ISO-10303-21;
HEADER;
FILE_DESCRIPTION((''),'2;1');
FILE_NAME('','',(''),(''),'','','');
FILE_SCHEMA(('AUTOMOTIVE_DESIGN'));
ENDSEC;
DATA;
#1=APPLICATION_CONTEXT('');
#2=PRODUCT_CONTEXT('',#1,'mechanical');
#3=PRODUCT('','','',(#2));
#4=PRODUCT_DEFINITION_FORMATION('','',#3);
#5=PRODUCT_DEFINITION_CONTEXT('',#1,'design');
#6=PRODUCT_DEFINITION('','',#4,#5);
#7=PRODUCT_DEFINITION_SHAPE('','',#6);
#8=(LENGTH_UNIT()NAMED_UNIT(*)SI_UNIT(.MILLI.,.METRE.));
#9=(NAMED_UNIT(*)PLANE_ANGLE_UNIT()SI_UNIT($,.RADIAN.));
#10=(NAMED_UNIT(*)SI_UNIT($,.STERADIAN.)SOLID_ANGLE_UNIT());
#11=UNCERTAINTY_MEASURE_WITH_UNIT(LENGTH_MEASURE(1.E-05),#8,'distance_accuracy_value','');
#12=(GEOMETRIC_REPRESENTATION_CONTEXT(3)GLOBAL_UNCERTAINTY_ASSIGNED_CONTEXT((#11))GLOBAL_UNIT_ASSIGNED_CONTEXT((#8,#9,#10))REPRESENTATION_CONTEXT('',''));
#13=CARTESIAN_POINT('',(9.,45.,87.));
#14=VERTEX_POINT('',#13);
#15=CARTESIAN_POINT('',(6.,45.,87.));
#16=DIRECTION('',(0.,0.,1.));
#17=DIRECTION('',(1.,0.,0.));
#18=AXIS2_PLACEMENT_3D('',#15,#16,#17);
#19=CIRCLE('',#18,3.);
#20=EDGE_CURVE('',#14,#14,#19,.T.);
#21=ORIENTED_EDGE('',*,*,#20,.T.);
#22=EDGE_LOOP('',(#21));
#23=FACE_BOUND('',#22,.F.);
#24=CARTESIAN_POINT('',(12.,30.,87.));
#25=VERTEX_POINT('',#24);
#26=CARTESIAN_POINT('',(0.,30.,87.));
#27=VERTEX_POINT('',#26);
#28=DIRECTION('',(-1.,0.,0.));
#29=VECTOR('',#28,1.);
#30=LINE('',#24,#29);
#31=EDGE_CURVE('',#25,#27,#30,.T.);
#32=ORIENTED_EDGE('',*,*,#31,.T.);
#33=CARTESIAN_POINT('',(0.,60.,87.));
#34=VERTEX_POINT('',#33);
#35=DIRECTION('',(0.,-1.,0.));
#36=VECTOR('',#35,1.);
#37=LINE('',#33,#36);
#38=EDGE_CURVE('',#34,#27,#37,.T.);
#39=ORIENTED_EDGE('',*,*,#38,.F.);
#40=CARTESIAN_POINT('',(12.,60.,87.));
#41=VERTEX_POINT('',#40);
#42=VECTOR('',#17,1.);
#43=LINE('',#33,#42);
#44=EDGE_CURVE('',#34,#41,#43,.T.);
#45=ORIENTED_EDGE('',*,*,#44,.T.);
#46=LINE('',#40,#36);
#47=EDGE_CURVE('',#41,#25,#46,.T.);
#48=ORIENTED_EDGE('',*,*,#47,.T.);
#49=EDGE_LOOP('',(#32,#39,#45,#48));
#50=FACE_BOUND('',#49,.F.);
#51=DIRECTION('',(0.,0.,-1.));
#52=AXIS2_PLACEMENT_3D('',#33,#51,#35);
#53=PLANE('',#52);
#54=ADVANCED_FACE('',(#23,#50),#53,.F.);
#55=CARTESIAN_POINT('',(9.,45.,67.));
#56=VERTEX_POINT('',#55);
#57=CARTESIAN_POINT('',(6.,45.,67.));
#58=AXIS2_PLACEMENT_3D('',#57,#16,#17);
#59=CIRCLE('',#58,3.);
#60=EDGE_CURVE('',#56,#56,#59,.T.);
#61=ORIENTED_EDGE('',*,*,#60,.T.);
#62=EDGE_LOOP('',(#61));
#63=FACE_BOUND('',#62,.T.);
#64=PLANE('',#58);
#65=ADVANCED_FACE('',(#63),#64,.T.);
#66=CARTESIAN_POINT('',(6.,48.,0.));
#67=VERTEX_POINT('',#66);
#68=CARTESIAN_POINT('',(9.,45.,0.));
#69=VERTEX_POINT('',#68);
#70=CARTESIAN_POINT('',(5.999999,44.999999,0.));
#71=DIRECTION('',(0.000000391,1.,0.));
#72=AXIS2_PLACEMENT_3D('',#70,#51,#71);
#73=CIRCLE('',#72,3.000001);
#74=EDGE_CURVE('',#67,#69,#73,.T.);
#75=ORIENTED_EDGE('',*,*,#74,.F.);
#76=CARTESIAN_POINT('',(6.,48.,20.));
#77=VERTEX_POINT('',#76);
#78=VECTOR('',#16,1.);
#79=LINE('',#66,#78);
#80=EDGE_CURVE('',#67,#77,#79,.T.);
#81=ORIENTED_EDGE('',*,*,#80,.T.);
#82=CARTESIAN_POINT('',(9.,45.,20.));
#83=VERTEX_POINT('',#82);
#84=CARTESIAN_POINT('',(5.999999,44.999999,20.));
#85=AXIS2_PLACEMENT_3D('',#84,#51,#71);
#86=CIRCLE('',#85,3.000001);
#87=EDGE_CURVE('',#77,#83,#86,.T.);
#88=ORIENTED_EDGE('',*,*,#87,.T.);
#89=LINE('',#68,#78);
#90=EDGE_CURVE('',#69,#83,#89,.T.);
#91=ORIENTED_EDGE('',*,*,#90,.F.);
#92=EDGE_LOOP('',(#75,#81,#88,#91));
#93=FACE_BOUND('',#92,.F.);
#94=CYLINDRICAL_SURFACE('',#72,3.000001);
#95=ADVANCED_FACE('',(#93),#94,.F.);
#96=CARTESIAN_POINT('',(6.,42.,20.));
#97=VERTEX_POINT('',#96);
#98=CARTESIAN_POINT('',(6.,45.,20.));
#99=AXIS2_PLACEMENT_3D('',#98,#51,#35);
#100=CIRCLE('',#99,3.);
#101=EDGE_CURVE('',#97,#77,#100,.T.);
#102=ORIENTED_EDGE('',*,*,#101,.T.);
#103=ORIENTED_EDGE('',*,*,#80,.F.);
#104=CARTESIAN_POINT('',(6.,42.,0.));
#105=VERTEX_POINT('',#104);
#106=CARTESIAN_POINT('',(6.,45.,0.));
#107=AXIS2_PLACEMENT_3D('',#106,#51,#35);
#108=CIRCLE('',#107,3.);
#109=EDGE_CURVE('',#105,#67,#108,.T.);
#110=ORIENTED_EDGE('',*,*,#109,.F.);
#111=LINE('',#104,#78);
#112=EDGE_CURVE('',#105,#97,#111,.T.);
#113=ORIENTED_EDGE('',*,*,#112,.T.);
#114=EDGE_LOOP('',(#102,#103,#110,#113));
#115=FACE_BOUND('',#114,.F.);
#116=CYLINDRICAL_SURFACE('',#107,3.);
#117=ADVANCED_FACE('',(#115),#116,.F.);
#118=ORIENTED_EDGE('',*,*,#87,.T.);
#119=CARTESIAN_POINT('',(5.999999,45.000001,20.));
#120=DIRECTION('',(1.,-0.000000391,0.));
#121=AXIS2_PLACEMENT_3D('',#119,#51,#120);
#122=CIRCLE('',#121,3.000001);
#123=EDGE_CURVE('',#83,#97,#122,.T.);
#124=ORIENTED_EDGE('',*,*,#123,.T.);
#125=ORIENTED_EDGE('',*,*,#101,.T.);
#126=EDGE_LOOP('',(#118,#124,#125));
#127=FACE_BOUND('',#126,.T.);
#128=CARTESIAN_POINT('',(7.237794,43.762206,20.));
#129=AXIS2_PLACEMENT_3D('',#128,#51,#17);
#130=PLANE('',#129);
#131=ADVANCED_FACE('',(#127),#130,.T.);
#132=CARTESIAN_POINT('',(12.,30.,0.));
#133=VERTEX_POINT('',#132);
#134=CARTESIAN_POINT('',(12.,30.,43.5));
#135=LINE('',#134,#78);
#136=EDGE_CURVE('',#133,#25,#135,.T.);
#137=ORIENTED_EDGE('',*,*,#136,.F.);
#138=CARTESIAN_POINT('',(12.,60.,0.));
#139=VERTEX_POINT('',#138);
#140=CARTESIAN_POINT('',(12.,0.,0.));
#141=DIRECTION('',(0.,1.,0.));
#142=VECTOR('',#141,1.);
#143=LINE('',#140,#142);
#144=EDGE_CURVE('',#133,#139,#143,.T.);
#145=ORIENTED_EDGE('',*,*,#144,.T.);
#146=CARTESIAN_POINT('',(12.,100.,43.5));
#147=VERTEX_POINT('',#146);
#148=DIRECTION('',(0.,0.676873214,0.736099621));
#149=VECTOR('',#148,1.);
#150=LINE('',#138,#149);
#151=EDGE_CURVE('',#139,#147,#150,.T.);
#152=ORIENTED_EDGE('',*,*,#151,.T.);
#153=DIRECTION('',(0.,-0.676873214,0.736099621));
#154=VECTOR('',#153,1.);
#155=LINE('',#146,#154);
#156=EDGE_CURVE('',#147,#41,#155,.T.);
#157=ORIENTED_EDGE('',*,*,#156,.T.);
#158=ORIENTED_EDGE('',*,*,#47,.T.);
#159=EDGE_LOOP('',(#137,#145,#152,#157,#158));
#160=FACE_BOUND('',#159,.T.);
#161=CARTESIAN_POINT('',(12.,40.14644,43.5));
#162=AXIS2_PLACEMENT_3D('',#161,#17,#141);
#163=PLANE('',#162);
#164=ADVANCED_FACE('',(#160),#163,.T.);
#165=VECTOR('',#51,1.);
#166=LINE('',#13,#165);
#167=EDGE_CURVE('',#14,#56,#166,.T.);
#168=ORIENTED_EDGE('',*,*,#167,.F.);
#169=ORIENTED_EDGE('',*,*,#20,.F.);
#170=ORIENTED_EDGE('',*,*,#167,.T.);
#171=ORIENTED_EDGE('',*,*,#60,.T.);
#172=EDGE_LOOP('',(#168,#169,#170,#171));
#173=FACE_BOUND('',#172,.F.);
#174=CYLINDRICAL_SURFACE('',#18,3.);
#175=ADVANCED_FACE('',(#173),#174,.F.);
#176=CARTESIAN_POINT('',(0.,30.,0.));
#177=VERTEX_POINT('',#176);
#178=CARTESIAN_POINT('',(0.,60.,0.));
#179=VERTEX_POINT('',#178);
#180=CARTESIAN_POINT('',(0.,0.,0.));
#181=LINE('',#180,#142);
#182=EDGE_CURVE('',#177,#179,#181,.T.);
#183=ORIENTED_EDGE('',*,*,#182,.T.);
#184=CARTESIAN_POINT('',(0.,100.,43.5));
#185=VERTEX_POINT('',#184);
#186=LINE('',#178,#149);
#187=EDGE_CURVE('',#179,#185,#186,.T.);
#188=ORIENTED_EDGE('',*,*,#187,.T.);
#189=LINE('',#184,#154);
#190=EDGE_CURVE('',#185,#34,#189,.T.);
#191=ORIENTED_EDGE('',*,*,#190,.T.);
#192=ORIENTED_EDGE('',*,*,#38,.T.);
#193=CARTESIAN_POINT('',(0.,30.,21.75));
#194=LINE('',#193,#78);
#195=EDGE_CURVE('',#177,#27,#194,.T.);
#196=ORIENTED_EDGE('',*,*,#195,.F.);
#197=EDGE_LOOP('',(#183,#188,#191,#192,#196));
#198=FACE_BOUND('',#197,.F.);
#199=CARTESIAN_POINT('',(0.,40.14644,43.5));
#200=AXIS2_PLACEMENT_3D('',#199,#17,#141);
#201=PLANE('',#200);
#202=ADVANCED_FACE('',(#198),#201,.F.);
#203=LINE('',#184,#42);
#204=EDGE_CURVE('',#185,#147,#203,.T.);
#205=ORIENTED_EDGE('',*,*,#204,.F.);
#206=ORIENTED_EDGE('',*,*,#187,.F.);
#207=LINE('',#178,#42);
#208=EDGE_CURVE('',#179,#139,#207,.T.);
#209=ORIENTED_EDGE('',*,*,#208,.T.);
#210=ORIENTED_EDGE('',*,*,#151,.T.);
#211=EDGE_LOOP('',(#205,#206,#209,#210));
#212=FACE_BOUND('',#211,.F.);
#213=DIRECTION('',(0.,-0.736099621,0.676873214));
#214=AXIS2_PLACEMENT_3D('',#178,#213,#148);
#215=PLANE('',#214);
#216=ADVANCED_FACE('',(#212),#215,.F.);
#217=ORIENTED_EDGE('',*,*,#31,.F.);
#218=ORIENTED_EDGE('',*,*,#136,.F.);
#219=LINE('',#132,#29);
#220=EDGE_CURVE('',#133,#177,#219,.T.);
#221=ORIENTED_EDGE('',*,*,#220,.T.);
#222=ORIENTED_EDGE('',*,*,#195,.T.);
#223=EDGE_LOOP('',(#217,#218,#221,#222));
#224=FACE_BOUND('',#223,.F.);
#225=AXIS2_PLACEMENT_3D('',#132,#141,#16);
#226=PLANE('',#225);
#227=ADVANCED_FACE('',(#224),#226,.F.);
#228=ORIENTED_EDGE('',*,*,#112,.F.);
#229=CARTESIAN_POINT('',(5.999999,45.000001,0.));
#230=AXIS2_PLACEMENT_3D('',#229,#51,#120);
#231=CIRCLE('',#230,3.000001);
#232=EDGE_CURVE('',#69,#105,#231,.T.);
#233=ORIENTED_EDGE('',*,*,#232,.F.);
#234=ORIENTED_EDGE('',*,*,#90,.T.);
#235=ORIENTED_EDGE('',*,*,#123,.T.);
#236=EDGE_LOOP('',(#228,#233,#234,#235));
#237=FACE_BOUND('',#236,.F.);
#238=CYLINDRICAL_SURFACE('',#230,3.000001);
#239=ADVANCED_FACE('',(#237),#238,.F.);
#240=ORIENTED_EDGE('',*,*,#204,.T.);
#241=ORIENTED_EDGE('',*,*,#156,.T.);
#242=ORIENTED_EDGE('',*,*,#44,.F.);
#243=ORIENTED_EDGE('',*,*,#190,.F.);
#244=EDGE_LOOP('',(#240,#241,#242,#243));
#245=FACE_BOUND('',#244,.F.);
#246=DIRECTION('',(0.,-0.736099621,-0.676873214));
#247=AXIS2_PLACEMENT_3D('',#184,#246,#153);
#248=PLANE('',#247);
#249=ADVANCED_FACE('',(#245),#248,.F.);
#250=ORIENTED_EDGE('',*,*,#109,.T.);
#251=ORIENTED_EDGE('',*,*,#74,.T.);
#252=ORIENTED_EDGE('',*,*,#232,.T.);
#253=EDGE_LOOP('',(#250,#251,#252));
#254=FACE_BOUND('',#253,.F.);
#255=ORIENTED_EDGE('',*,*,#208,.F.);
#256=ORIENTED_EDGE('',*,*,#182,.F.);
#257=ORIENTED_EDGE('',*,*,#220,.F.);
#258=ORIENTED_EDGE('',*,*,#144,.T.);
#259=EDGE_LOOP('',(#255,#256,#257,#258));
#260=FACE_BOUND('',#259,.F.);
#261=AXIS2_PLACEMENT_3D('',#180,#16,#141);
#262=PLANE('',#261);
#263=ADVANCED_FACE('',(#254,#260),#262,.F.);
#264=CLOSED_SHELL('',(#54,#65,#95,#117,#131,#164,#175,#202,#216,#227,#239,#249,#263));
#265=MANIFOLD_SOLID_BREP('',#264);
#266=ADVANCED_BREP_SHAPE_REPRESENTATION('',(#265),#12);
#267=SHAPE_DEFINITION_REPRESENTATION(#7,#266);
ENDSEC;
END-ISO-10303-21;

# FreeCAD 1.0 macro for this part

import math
import FreeCAD as App
import Part
import Sketcher

V = App.Vector
Q = App.Units.Quantity


def add_polygon(sketch, points):
    """Adds a closed chain of lines whose ends are joined by coincident constraints."""
    first, n = sketch.GeometryCount, len(points)
    for a, b in zip(points, points[1:] + points[:1]):
        sketch.addGeometry(Part.LineSegment(App.Vector(*a, 0), App.Vector(*b, 0)), False)
    for i in range(n):
        sketch.addConstraint(Sketcher.Constraint("Coincident", first + i, 2, first + (i + 1) % n, 1))

doc = App.newDocument("Part")
params = doc.addObject("Spreadsheet::Sheet", "Params")
for row, (alias, value) in enumerate([
    ("sketch1_width", "60 mm"),
    ("sketch1_height", "87 mm"),
    ("pad1_length", "12 mm"),
    ("sketch2_diameter", "6 mm"),
    ("pocket1_length", "20 mm"),
    ("sketch3_diameter", "6 mm"),
    ("pocket2_length", "20 mm"),
    ("sketch4_width", "30 mm"),
    ("sketch4_height", "87 mm"),
    ("pocket3_length", "25 mm"),
], start=1):
    params.set(f"A{row}", alias)
    params.set(f"B{row}", "=" + value)
    params.setAlias(f"B{row}", alias)

body = doc.addObject("PartDesign::Body", "Body")

# Sketch on YZ plane
sketch1 = body.newObject("Sketcher::SketchObject", "Sketch")
sketch1.AttachmentSupport = (doc.getObject("YZ_Plane"), [""])
sketch1.MapMode = "FlatFace"
add_polygon(sketch1, [(0, 87), (0, 0), (60, 0), (100, 44), (60, 87)])  # lines 0-4
sketch1.addConstraint(Sketcher.Constraint("Vertical", 0))
sketch1.addConstraint(Sketcher.Constraint("Horizontal", 1))
sketch1.addConstraint(Sketcher.Constraint("Horizontal", 4))
sketch1.addConstraint(Sketcher.Constraint("Coincident", 0, 2, -1, 1))
sketch1.addConstraint(Sketcher.Constraint("Vertical", 1, 2, 3, 2))
sketch1.addConstraint(Sketcher.Constraint("Equal", 2, 3))
sketch1.addConstraint(Sketcher.Constraint("DistanceX", 1, 1, 1, 2, Q("60 mm")))
sketch1.addConstraint(Sketcher.Constraint("DistanceY", 0, 2, 0, 1, Q("87 mm")))
sketch1.addConstraint(Sketcher.Constraint("DistanceX", -1, 1, 2, 2, Q("100 mm")))
sketch1.setExpression("Constraints[11]", "Params.sketch1_width")
sketch1.setExpression("Constraints[12]", "Params.sketch1_height")
pad1 = body.newObject("PartDesign::Pad", "Pad")
pad1.Profile = sketch1
pad1.setExpression("Length", "Params.pad1_length")

# Sketch on XY plane
sketch2 = body.newObject("Sketcher::SketchObject", "Sketch001")
sketch2.AttachmentSupport = (doc.getObject("XY_Plane"), [""])
sketch2.MapMode = "FlatFace"
sketch2.AttachmentOffset = App.Placement(V(0, 0, 87), App.Rotation())
sketch2.addGeometry(Part.Circle(V(6, 45, 0), V(0, 0, 1), 3), False)
sketch2.addGeometry(Part.Circle(V(6, 15, 0), V(0, 0, 1), 3), False)
sketch2.addGeometry(Part.Circle(V(6, -15, 0), V(0, 0, 1), 3), False)
sketch2.addConstraint(Sketcher.Constraint("Equal", 0, 1))
sketch2.addConstraint(Sketcher.Constraint("Equal", 1, 2))
sketch2.addConstraint(Sketcher.Constraint("Symmetric", 1, 3, 2, 3, -1))
sketch2.addConstraint(Sketcher.Constraint("Vertical", 0, 3, 1, 3))
sketch2.addConstraint(Sketcher.Constraint("Diameter", 0, Q("6 mm")))
sketch2.addConstraint(Sketcher.Constraint("DistanceX", -1, 1, 0, 3, Q("6 mm")))
sketch2.addConstraint(Sketcher.Constraint("DistanceY", -1, 1, 0, 3, Q("45 mm")))
sketch2.addConstraint(Sketcher.Constraint("DistanceY", -1, 1, 1, 3, Q("15 mm")))
sketch2.setExpression("Constraints[4]", "Params.sketch2_diameter")
pocket1 = body.newObject("PartDesign::Pocket", "Pocket")
pocket1.Profile = sketch2
pocket1.setExpression("Length", "Params.pocket1_length")

# Sketch on XY plane
sketch3 = body.newObject("Sketcher::SketchObject", "Sketch002")
sketch3.AttachmentSupport = (doc.getObject("XY_Plane"), [""])
sketch3.MapMode = "FlatFace"
sketch3.addGeometry(Part.ArcOfCircle(Part.Circle(V(6, 15, 0), V(0, 0, 1), 3), math.radians(-90), math.radians(0)), False)
sketch3.addGeometry(Part.ArcOfCircle(Part.Circle(V(6, 15, 0), V(0, 0, 1), 3), math.radians(90), math.radians(270)), False)
sketch3.addGeometry(Part.ArcOfCircle(Part.Circle(V(6, 15, 0), V(0, 0, 1), 3), math.radians(0), math.radians(90)), False)
sketch3.addGeometry(Part.ArcOfCircle(Part.Circle(V(6, 45, 0), V(0, 0, 1), 3), math.radians(-90), math.radians(0)), False)
sketch3.addGeometry(Part.ArcOfCircle(Part.Circle(V(6, 45, 0), V(0, 0, 1), 3), math.radians(90), math.radians(270)), False)
sketch3.addGeometry(Part.ArcOfCircle(Part.Circle(V(6, 45, 0), V(0, 0, 1), 3), math.radians(0), math.radians(90)), False)
sketch3.addGeometry(Part.Circle(V(6, -15, 0), V(0, 0, 1), 3), False)
sketch3.addConstraint(Sketcher.Constraint("Tangent", 0, 1, 1, 2))
sketch3.addConstraint(Sketcher.Constraint("Tangent", 1, 1, 2, 2))
sketch3.addConstraint(Sketcher.Constraint("Tangent", 2, 1, 0, 2))
sketch3.addConstraint(Sketcher.Constraint("Tangent", 3, 1, 4, 2))
sketch3.addConstraint(Sketcher.Constraint("Tangent", 4, 1, 5, 2))
sketch3.addConstraint(Sketcher.Constraint("Tangent", 5, 1, 3, 2))
sketch3.addConstraint(Sketcher.Constraint("Equal", 2, 3))
sketch3.addConstraint(Sketcher.Constraint("Equal", 5, 6))
sketch3.addConstraint(Sketcher.Constraint("Symmetric", 0, 3, 6, 3, -1))
sketch3.addConstraint(Sketcher.Constraint("Horizontal", 1, 3, 2, 1))
sketch3.addConstraint(Sketcher.Constraint("Horizontal", 4, 3, 5, 1))
sketch3.addConstraint(Sketcher.Constraint("Vertical", 2, 3, 3, 3))
sketch3.addConstraint(Sketcher.Constraint("Vertical", 6, 3, 0, 1))
sketch3.addConstraint(Sketcher.Constraint("Vertical", 0, 1, 1, 1))
sketch3.addConstraint(Sketcher.Constraint("Vertical", 1, 1, 3, 1))
sketch3.addConstraint(Sketcher.Constraint("Vertical", 3, 1, 4, 1))
sketch3.addConstraint(Sketcher.Constraint("Diameter", 6, Q("6 mm")))
sketch3.addConstraint(Sketcher.Constraint("DistanceX", -1, 1, 0, 3, Q("5.999999 mm")))
sketch3.addConstraint(Sketcher.Constraint("DistanceY", -1, 1, 0, 3, Q("15.000001 mm")))
sketch3.addConstraint(Sketcher.Constraint("DistanceY", -1, 1, 3, 3, Q("45.000001 mm")))
sketch3.setExpression("Constraints[16]", "Params.sketch3_diameter")
pocket2 = body.newObject("PartDesign::Pocket", "Pocket001")
pocket2.Profile = sketch3
pocket2.setExpression("Length", "Params.pocket2_length")
pocket2.Reversed = True

# Sketch on YZ plane
sketch4 = body.newObject("Sketcher::SketchObject", "Sketch003")
sketch4.AttachmentSupport = (doc.getObject("YZ_Plane"), [""])
sketch4.MapMode = "FlatFace"
sketch4.AttachmentOffset = App.Placement(V(0, 0, 12), App.Rotation())
add_polygon(sketch4, [(0, 87), (0, 0), (30, 0), (30, 87)])  # lines 0-3
sketch4.addConstraint(Sketcher.Constraint("Vertical", 0))
sketch4.addConstraint(Sketcher.Constraint("Horizontal", 1))
sketch4.addConstraint(Sketcher.Constraint("Vertical", 2))
sketch4.addConstraint(Sketcher.Constraint("Horizontal", 3))
sketch4.addConstraint(Sketcher.Constraint("Coincident", 0, 2, -1, 1))
sketch4.addConstraint(Sketcher.Constraint("DistanceX", 1, 1, 1, 2, Q("30 mm")))
sketch4.addConstraint(Sketcher.Constraint("DistanceY", 0, 2, 0, 1, Q("87 mm")))
sketch4.setExpression("Constraints[9]", "Params.sketch4_width")
sketch4.setExpression("Constraints[10]", "Params.sketch4_height")
pocket3 = body.newObject("PartDesign::Pocket", "Pocket002")
pocket3.Profile = sketch4
pocket3.setExpression("Length", "Params.pocket3_length")

doc.recompute()
